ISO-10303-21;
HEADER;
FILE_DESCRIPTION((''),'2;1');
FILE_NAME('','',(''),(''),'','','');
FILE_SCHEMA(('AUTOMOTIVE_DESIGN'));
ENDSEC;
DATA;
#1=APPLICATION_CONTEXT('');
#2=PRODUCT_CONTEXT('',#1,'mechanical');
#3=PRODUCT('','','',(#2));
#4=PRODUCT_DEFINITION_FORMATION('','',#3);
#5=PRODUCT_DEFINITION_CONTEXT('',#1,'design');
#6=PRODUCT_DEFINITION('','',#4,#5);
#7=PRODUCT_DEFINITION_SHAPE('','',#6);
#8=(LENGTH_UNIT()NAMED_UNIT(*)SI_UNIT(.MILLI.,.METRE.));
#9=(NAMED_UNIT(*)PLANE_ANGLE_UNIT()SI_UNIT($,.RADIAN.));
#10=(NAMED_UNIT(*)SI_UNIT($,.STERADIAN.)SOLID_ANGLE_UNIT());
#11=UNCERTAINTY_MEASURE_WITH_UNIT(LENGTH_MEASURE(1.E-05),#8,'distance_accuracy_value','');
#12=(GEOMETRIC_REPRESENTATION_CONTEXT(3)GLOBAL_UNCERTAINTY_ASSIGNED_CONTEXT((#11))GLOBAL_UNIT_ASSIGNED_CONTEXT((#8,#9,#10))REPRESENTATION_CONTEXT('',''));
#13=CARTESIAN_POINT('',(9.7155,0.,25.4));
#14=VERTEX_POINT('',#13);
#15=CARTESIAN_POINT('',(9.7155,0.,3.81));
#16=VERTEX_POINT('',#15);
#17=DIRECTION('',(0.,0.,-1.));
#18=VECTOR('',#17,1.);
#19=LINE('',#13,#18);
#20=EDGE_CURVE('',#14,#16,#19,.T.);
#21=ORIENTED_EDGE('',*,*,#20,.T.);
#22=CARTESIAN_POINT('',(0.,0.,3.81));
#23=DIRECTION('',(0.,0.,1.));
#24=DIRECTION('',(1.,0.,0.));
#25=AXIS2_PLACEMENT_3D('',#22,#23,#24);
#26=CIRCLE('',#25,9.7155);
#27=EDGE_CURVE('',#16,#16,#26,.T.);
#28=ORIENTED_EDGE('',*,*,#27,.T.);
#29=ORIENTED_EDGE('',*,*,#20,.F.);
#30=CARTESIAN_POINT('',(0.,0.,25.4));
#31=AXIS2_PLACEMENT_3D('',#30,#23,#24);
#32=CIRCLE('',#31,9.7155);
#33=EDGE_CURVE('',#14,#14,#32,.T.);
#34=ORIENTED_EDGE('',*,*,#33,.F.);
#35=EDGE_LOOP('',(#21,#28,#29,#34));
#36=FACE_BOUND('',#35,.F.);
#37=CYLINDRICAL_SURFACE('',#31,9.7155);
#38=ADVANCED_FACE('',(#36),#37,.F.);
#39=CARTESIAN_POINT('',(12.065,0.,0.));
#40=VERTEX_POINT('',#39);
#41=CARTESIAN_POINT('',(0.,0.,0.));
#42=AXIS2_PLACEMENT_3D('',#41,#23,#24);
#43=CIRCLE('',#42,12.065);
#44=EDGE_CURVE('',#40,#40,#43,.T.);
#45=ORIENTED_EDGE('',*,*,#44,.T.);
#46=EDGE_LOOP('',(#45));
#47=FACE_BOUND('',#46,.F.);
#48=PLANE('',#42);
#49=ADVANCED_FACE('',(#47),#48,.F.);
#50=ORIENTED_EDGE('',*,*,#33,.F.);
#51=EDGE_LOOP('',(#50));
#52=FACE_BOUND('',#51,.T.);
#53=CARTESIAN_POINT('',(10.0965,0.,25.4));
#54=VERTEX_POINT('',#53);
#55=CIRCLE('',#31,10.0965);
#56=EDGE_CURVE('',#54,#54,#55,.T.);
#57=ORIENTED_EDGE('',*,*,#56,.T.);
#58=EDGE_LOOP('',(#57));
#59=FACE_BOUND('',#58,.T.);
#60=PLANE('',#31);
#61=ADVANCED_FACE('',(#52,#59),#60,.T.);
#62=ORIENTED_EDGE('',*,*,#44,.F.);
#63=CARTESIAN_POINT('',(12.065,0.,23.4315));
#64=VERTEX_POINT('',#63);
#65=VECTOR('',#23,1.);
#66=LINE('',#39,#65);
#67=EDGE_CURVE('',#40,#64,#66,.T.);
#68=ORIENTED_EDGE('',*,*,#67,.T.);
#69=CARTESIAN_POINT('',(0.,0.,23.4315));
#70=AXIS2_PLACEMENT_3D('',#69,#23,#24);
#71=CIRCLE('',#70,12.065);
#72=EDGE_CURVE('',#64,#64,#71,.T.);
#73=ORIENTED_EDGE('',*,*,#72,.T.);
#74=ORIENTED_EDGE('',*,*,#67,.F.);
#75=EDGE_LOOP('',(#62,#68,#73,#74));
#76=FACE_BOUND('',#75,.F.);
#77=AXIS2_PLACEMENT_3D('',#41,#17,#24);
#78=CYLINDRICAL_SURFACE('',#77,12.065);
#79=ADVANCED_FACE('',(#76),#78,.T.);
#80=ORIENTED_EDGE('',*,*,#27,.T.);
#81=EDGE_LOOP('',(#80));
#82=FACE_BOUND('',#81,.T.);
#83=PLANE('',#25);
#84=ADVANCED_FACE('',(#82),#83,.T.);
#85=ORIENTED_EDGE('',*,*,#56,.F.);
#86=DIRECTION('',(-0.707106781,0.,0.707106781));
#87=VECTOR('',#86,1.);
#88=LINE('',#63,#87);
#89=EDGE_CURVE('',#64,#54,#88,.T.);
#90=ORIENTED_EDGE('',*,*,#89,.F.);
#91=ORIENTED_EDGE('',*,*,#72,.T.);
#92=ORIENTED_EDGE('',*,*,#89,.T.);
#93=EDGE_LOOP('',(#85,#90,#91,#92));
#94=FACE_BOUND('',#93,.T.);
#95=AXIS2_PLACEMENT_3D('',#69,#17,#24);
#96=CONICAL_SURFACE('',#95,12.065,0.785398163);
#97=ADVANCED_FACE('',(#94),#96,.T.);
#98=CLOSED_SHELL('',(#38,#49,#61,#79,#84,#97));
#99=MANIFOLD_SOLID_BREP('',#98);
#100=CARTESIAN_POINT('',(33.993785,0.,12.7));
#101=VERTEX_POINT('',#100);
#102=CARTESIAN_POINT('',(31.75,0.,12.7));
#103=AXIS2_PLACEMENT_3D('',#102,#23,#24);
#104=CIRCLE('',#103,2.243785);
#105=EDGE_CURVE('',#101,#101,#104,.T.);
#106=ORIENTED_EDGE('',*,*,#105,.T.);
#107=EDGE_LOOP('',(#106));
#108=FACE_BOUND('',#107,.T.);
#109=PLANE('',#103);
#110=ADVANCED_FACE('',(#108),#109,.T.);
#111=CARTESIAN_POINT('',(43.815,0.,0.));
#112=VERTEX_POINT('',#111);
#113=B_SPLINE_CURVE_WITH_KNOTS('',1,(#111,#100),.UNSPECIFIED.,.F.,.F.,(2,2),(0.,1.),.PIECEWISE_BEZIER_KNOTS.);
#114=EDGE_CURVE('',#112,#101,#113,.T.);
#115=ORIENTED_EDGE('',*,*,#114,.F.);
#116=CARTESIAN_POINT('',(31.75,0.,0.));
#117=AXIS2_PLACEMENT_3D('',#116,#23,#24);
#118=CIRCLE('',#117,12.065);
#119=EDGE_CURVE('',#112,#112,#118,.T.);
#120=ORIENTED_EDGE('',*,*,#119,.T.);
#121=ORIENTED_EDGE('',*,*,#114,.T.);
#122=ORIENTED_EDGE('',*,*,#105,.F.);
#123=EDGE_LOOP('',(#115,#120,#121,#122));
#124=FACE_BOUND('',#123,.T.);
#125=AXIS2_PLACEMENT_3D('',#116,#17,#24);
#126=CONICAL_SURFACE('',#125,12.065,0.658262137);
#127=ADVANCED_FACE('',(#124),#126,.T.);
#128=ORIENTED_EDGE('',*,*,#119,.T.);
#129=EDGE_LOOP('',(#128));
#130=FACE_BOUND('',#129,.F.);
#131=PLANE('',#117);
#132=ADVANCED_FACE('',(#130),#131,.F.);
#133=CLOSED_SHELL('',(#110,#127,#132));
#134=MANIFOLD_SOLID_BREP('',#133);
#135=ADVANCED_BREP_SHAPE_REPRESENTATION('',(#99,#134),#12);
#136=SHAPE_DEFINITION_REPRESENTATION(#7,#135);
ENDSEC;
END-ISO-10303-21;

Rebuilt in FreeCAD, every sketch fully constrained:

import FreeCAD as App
import Part
import Sketcher

V = App.Vector
Q = App.Units.Quantity


def edges_at(feature, points):
    """Names of the edges that pass closest to the given points."""
    edges = feature.Shape.Edges
    near = lambda p: min(range(len(edges)), key=lambda i: edges[i].distToShape(Part.Vertex(*p))[0])
    return sorted({f"Edge{near(p) + 1}" for p in points})

doc = App.newDocument("Part")
params = doc.addObject("Spreadsheet::Sheet", "Params")
for row, (alias, value) in enumerate([
    ("sketch1_diameter", "0.95 in"),
    ("pad1_length", "1 in"),
    ("sketch2_diameter", "0.765 in"),
    ("pocket1_length", "0.85 in"),
    ("chamfer_size", "0.0775 in"),
    ("sketch3_diameter", "0.95 in"),
], start=1):
    params.set(f"A{row}", alias)
    params.set(f"B{row}", "=" + value)
    params.setAlias(f"B{row}", alias)

body = doc.addObject("PartDesign::Body", "Body")

sketch1 = body.newObject("Sketcher::SketchObject", "Sketch")
sketch1.AttachmentSupport = (doc.getObject("XY_Plane"), [""])
sketch1.MapMode = "FlatFace"
sketch1.addGeometry(Part.Circle(V(0, 0, 0), V(0, 0, 1), 12), False)
sketch1.addConstraint([
    Sketcher.Constraint("Coincident", 0, 3, -1, 1),
    Sketcher.Constraint("Diameter", 0, Q("0.95 in")),
])
sketch1.setExpression("Constraints[1]", "Params.sketch1_diameter")
pad1 = body.newObject("PartDesign::Pad", "Pad")
pad1.Profile = sketch1
pad1.setExpression("Length", "Params.pad1_length")

sketch2 = body.newObject("Sketcher::SketchObject", "Sketch001")
sketch2.AttachmentSupport = (doc.getObject("XY_Plane"), [""])
sketch2.MapMode = "FlatFace"
sketch2.AttachmentOffset = App.Placement(V(0, 0, 1 * 25.4), App.Rotation())
sketch2.addGeometry(Part.Circle(V(0, 0, 0), V(0, 0, 1), 10), False)
sketch2.addConstraint([
    Sketcher.Constraint("Coincident", 0, 3, -1, 1),
    Sketcher.Constraint("Diameter", 0, Q("0.765 in")),
])
sketch2.setExpression("Constraints[1]", "Params.sketch2_diameter")
pocket1 = body.newObject("PartDesign::Pocket", "Pocket")
pocket1.Profile = sketch2
pocket1.setExpression("Length", "Params.pocket1_length")
doc.recompute()

chamfer = body.newObject("PartDesign::Chamfer", "Chamfer")
chamfer.Base = (pocket1, edges_at(pocket1, [(-12.065, 0, 25.4)]))
chamfer.setExpression("Size", "Params.chamfer_size")
body2 = doc.addObject("PartDesign::Body", "Body001")

sketch3 = body2.newObject("Sketcher::SketchObject", "Sketch002")
sketch3.AttachmentSupport = (doc.getObject("XY_Plane001"), [""])
sketch3.MapMode = "FlatFace"
sketch3.addGeometry(Part.Circle(V(32, 0, 0), V(0, 0, 1), 12), False)
sketch3.addConstraint([
    Sketcher.Constraint("PointOnObject", 0, 3, -1),
    Sketcher.Constraint("Diameter", 0, Q("0.95 in")),
    Sketcher.Constraint("DistanceX", -1, 1, 0, 3, Q("1.25 in")),
])
sketch3.setExpression("Constraints[1]", "Params.sketch3_diameter")

sketch4 = body2.newObject("Sketcher::SketchObject", "Sketch003")
sketch4.AttachmentSupport = (doc.getObject("XY_Plane001"), [""])
sketch4.MapMode = "FlatFace"
sketch4.AttachmentOffset = App.Placement(V(0, 0, 0.5 * 25.4), App.Rotation())
sketch4.addGeometry(Part.Circle(V(31.8, 0, 0), V(0, 0, 1), 2.2), False)
sketch4.addConstraint([
    Sketcher.Constraint("PointOnObject", 0, 3, -1),
    Sketcher.Constraint("DistanceX", -1, 1, 0, 3, Q("1.25 in")),
    Sketcher.Constraint("Diameter", 0, 4.48757),
])

additiveloft = body2.newObject("PartDesign::AdditiveLoft", "AdditiveLoft")
additiveloft.Profile = sketch3
additiveloft.Sections = [sketch4]

doc.recompute()
